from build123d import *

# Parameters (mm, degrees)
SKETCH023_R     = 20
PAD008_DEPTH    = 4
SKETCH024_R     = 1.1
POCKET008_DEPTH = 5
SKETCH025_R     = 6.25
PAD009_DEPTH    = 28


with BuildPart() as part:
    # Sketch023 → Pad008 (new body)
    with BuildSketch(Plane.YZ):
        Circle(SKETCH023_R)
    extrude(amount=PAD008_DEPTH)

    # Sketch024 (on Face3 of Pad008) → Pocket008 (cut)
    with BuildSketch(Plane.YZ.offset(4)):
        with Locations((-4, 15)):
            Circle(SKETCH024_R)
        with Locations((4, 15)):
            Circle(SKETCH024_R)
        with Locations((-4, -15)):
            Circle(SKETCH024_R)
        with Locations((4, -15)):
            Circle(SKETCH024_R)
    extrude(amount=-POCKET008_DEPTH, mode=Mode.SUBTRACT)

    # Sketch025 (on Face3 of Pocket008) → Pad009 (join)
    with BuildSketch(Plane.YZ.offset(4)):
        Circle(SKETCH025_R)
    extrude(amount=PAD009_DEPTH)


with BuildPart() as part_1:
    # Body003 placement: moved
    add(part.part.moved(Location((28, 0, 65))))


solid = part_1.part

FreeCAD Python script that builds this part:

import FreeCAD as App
import Part
import Sketcher
from FreeCAD import Vector

doc = App.newDocument("Part")
body = doc.addObject("PartDesign::Body", "Body")

# Sketch on YZ plane
sketch1 = body.newObject("Sketcher::SketchObject", "Sketch")
sketch1.AttachmentSupport = (doc.getObject("YZ_Plane"), [""])
sketch1.MapMode = "FlatFace"
sketch1.addGeometry(Part.Circle(Vector(0, 0, 0), Vector(0, 0, 1), 20), False)
sketch1.addConstraint([
    Sketcher.Constraint("Coincident", 0, 3, -1, 1),
    Sketcher.Constraint("Diameter", 0, 40.0),
])
pad1 = body.newObject("PartDesign::Pad", "Pad")
pad1.Profile = sketch1
pad1.Length = 4

# Sketch on YZ plane
sketch2 = body.newObject("Sketcher::SketchObject", "Sketch001")
sketch2.AttachmentSupport = (doc.getObject("YZ_Plane"), [""])
sketch2.MapMode = "FlatFace"
sketch2.AttachmentOffset = App.Placement(Vector(0, 0, 4), App.Rotation())
sketch2.addGeometry([
    Part.Circle(Vector(-4, 15, 0), Vector(0, 0, 1), 1.1),
    Part.Circle(Vector(4, 15, 0), Vector(0, 0, 1), 1.1),
    Part.Circle(Vector(-4, -15, 0), Vector(0, 0, 1), 1.1),
    Part.Circle(Vector(4, -15, 0), Vector(0, 0, 1), 1.1),
], False)
sketch2.addConstraint([
    Sketcher.Constraint("Equal", 0, 1),
    Sketcher.Constraint("Equal", 1, 2),
    Sketcher.Constraint("Equal", 2, 3),
    Sketcher.Constraint("Symmetric", 1, 3, 2, 3, -1, 1),
    Sketcher.Constraint("Symmetric", 0, 3, 3, 3, -1, 1),
    Sketcher.Constraint("Symmetric", 0, 3, 1, 3, -2),
    Sketcher.Constraint("Diameter", 0, 2.2),
    Sketcher.Constraint("DistanceX", 0, 3, -1, 1, 4.0),
    Sketcher.Constraint("DistanceY", -1, 1, 0, 3, 15.0),
])
pocket1 = body.newObject("PartDesign::Pocket", "Pocket")
pocket1.Profile = sketch2
pocket1.Length = 5

# Sketch on YZ plane
sketch3 = body.newObject("Sketcher::SketchObject", "Sketch002")
sketch3.AttachmentSupport = (doc.getObject("YZ_Plane"), [""])
sketch3.MapMode = "FlatFace"
sketch3.AttachmentOffset = App.Placement(Vector(0, 0, 4), App.Rotation())
sketch3.addGeometry(Part.Circle(Vector(0, 0, 0), Vector(0, 0, 1), 6.25), False)
sketch3.addConstraint([
    Sketcher.Constraint("Coincident", 0, 3, -1, 1),
    Sketcher.Constraint("Diameter", 0, 12.5),
])
pad2 = body.newObject("PartDesign::Pad", "Pad001")
pad2.Profile = sketch3
pad2.Length = 28
body2 = doc.addObject("PartDesign::Body", "Body001")
doc.recompute()

body.Placement = App.Placement(Vector(28, 0, 65), App.Rotation(Vector(0, 0, 1), 0))
boolean = body2.newObject("PartDesign::Boolean", "Boolean")
boolean.Type = "Fuse"
boolean.addObjects([body])

doc.recompute()
